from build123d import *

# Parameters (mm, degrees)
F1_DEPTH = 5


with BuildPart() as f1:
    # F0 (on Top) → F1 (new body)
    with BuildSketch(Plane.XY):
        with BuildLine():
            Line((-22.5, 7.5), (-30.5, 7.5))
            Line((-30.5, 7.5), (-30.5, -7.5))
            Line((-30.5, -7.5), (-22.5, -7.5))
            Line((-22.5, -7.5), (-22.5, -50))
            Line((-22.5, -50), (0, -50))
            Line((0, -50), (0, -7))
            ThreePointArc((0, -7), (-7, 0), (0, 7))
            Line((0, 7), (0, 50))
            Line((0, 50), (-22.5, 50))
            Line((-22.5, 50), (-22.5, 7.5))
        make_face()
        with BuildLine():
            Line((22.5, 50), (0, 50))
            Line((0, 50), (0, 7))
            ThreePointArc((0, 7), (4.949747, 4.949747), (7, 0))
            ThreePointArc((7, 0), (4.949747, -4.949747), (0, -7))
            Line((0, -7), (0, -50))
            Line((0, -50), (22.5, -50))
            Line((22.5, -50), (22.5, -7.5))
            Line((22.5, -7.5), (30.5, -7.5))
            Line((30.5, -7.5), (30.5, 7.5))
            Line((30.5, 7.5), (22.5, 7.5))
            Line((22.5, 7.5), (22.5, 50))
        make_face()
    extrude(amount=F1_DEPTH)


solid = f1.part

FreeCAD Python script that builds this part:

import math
import FreeCAD as App
import Part
import Sketcher
from FreeCAD import Vector

doc = App.newDocument("Part")
body = doc.addObject("PartDesign::Body", "Body")

sketch1 = body.newObject("Sketcher::SketchObject", "Sketch")
sketch1.AttachmentSupport = (doc.getObject("XY_Plane"), [""])
sketch1.MapMode = "FlatFace"
sketch1.addGeometry([
    Part.LineSegment(Vector(-22, 8, 0), Vector(-30, 8, 0)),
    Part.LineSegment(Vector(-30, 8, 0), Vector(-30, -8, 0)),
    Part.LineSegment(Vector(-30, -8, 0), Vector(-22, -8, 0)),
    Part.LineSegment(Vector(-22, -8, 0), Vector(-22, -50, 0)),
    Part.LineSegment(Vector(-22, -50, 0), Vector(22, -50, 0)),
    Part.LineSegment(Vector(22, -50, 0), Vector(22, -8, 0)),
    Part.LineSegment(Vector(22, -8, 0), Vector(30, -8, 0)),
    Part.LineSegment(Vector(30, -8, 0), Vector(30, 8, 0)),
    Part.LineSegment(Vector(30, 8, 0), Vector(22, 8, 0)),
    Part.LineSegment(Vector(22, 8, 0), Vector(22, 50, 0)),
    Part.LineSegment(Vector(22, 50, 0), Vector(-22, 50, 0)),
    Part.LineSegment(Vector(-22, 50, 0), Vector(-22, 8, 0)),
    Part.ArcOfCircle(Part.Circle(Vector(0, 0, 0), Vector(0, 0, 1), 7), math.radians(90), math.radians(270)),
    Part.ArcOfCircle(Part.Circle(Vector(0, 0, 0), Vector(0, 0, 1), 7), math.radians(0), math.radians(90)),
    Part.ArcOfCircle(Part.Circle(Vector(0, 0, 0), Vector(0, 0, 1), 7), math.radians(-90), math.radians(0)),
], False)
sketch1.addConstraint([
    Sketcher.Constraint("Coincident", 0, 2, 1, 1),
    Sketcher.Constraint("Coincident", 1, 2, 2, 1),
    Sketcher.Constraint("Coincident", 2, 2, 3, 1),
    Sketcher.Constraint("Coincident", 3, 2, 4, 1),
    Sketcher.Constraint("Coincident", 4, 2, 5, 1),
    Sketcher.Constraint("Coincident", 5, 2, 6, 1),
    Sketcher.Constraint("Coincident", 6, 2, 7, 1),
    Sketcher.Constraint("Coincident", 7, 2, 8, 1),
    Sketcher.Constraint("Coincident", 8, 2, 9, 1),
    Sketcher.Constraint("Coincident", 9, 2, 10, 1),
    Sketcher.Constraint("Coincident", 10, 2, 11, 1),
    Sketcher.Constraint("Coincident", 11, 2, 0, 1),
    Sketcher.Constraint("Tangent", 12, 1, 13, 2),
    Sketcher.Constraint("Tangent", 13, 1, 14, 2),
    Sketcher.Constraint("Tangent", 14, 1, 12, 2),
    Sketcher.Constraint("Horizontal", 0),
    Sketcher.Constraint("Vertical", 1),
    Sketcher.Constraint("Horizontal", 2),
    Sketcher.Constraint("Vertical", 3),
    Sketcher.Constraint("Horizontal", 4),
    Sketcher.Constraint("Vertical", 5),
    Sketcher.Constraint("Horizontal", 6),
    Sketcher.Constraint("Vertical", 7),
    Sketcher.Constraint("Horizontal", 8),
    Sketcher.Constraint("Vertical", 9),
    Sketcher.Constraint("Horizontal", 10),
    Sketcher.Constraint("Vertical", 11),
    Sketcher.Constraint("Coincident", 12, 3, -1, 1),
    Sketcher.Constraint("Symmetric", 0, 2, 6, 2, -1, 1),
    Sketcher.Constraint("Symmetric", 2, 2, 8, 2, -1, 1),
    Sketcher.Constraint("Symmetric", 4, 2, 10, 2, -1, 1),
    Sketcher.Constraint("Symmetric", 2, 2, 5, 2, -2),
    Sketcher.Constraint("PointOnObject", 12, 1, -2),
    Sketcher.Constraint("PointOnObject", 13, 1, -1),
    Sketcher.Constraint("PointOnObject", 14, 1, -2),
    Sketcher.Constraint("Radius", 12, 7.0),
    Sketcher.Constraint("DistanceX", 0, 2, 0, 1, 8.0),
    Sketcher.Constraint("DistanceX", 4, 1, 4, 2, 45.0),
    Sketcher.Constraint("DistanceY", 1, 2, 1, 1, 15.0),
    Sketcher.Constraint("DistanceY", 3, 2, 3, 1, 42.5),
])
pad1 = body.newObject("PartDesign::Pad", "Pad")
pad1.Profile = sketch1
pad1.Length = 5

doc.recompute()
